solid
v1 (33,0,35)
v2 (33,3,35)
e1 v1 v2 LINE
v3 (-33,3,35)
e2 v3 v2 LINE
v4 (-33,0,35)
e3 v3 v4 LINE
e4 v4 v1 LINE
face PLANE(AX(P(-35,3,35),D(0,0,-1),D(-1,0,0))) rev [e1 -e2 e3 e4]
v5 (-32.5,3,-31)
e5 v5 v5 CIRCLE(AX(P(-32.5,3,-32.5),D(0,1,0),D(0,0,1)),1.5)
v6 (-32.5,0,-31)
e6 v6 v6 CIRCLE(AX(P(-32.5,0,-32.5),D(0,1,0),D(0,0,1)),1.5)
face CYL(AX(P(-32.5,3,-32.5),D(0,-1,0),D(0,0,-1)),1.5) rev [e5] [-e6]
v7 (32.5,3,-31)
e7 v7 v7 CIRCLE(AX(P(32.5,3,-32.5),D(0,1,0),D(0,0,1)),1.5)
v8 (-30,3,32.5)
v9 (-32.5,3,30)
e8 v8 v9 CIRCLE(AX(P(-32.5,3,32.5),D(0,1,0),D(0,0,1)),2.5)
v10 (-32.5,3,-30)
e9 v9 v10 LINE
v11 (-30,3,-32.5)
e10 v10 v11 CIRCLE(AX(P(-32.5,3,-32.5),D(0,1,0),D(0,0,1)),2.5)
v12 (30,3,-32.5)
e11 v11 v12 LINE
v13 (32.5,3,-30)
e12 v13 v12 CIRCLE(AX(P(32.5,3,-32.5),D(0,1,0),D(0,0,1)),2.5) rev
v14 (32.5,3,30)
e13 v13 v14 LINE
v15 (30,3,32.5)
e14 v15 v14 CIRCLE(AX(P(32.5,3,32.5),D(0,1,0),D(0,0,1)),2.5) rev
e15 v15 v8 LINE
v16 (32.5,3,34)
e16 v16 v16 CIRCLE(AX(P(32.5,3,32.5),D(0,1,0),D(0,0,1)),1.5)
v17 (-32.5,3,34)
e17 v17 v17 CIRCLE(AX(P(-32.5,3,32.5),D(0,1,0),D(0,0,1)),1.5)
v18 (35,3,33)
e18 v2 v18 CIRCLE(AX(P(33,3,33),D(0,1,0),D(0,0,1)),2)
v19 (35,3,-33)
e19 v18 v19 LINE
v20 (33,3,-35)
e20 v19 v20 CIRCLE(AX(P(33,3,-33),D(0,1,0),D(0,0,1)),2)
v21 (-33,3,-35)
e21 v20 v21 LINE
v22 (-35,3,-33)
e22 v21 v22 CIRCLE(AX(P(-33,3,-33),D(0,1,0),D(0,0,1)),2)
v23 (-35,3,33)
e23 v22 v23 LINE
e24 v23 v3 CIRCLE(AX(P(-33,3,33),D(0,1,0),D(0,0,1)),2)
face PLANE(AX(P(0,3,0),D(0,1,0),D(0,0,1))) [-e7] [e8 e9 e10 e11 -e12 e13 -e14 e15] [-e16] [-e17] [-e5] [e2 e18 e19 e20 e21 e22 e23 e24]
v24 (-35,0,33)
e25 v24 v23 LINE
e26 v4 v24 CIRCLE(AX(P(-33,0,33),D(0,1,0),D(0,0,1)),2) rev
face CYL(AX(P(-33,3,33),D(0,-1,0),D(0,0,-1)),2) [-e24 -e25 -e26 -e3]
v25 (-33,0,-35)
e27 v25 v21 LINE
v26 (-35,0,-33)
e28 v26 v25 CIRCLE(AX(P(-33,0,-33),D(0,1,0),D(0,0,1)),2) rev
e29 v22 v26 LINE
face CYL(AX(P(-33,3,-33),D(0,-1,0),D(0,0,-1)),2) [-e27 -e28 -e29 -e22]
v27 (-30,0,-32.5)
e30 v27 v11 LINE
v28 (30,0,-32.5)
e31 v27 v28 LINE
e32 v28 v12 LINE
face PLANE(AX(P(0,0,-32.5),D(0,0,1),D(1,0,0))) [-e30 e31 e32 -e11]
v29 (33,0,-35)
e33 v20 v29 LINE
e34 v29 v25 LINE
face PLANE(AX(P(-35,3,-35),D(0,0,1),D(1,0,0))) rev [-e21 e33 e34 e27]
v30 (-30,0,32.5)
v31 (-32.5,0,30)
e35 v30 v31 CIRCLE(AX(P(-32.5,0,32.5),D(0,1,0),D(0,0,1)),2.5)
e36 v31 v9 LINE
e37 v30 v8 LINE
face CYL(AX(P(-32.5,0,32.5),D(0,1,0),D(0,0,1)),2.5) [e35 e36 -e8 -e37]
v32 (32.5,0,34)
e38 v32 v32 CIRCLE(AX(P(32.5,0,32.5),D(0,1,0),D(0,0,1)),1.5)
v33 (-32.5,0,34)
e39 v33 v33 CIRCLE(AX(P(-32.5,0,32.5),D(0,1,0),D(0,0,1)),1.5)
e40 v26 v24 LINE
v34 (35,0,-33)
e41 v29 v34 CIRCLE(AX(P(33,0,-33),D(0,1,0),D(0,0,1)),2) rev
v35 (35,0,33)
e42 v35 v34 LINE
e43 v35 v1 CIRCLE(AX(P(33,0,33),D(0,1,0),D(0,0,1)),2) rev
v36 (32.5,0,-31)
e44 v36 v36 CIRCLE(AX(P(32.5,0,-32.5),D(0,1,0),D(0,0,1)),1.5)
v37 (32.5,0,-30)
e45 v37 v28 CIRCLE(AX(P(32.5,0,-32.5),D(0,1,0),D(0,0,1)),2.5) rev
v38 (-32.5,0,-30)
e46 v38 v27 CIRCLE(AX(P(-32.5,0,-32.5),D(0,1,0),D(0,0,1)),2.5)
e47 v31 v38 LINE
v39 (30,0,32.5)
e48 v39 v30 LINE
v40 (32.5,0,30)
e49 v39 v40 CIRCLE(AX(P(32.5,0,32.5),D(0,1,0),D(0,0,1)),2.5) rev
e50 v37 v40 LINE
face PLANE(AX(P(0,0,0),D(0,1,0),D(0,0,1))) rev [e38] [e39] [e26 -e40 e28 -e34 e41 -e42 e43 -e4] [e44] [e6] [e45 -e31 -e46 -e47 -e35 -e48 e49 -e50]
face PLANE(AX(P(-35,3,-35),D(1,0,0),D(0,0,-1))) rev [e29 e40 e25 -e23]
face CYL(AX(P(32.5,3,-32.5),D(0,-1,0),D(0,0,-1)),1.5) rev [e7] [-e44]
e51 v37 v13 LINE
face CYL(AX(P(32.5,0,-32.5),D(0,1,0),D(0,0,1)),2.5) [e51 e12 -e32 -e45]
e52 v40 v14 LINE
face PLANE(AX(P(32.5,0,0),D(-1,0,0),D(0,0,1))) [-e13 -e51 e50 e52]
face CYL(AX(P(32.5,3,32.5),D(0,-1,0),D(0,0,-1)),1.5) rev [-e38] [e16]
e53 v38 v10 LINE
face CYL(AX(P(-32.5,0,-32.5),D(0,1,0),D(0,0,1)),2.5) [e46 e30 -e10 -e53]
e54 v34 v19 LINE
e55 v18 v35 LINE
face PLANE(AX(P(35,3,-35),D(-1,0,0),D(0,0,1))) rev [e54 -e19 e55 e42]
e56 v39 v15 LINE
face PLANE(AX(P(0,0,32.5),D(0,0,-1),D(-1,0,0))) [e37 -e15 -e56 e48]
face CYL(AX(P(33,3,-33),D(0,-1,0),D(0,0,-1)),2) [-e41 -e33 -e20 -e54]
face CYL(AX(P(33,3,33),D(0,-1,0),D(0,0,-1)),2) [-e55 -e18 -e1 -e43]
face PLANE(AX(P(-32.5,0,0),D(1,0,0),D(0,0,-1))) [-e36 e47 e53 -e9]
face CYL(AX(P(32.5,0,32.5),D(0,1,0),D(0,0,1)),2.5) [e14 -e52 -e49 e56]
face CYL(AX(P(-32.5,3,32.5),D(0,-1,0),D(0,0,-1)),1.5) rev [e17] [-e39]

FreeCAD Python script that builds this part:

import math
import FreeCAD as App
import Part
import Sketcher
Q = App.Units.Quantity


def edges_at(feature, points):
    """Names of the edges that pass closest to the given points."""
    edges = feature.Shape.Edges
    near = lambda p: min(range(len(edges)), key=lambda i: edges[i].distToShape(Part.Vertex(*p))[0])
    return sorted({f"Edge{near(p) + 1}" for p in points})


def add_polygon(sketch, points):
    """Adds a closed chain of lines whose ends are joined by coincident constraints."""
    first, n = sketch.GeometryCount, len(points)
    for a, b in zip(points, points[1:] + points[:1]):
        sketch.addGeometry(Part.LineSegment(App.Vector(*a, 0), App.Vector(*b, 0)), False)
    for i in range(n):
        sketch.addConstraint(Sketcher.Constraint("Coincident", first + i, 2, first + (i + 1) % n, 1))

doc = App.newDocument("Part")
body = doc.addObject("PartDesign::Body", "Body")

sketch1 = body.newObject("Sketcher::SketchObject", "Sketch")
sketch1.AttachmentSupport = (doc.getObject("XZ_Plane"), [""])
sketch1.MapMode = "FlatFace"
add_polygon(sketch1, [(-35, -35), (-35, 35), (35, 35), (35, -35)])
sketch1.addGeometry(Part.Circle(App.Vector(-32.5, 32.5, 0), App.Vector(0, 0, 1), 1.5), False)
sketch1.addGeometry(Part.Circle(App.Vector(32.5, 32.5, 0), App.Vector(0, 0, 1), 1.5), False)
sketch1.addGeometry(Part.Circle(App.Vector(-32.5, -32.5, 0), App.Vector(0, 0, 1), 1.5), False)
sketch1.addGeometry(Part.Circle(App.Vector(32.5, -32.5, 0), App.Vector(0, 0, 1), 1.5), False)
sketch1.addConstraint(Sketcher.Constraint("Vertical", 0))
sketch1.addConstraint(Sketcher.Constraint("Horizontal", 1))
sketch1.addConstraint(Sketcher.Constraint("Vertical", 2))
sketch1.addConstraint(Sketcher.Constraint("Horizontal", 3))
sketch1.addConstraint(Sketcher.Constraint("Equal", 4, 5))
sketch1.addConstraint(Sketcher.Constraint("Equal", 5, 6))
sketch1.addConstraint(Sketcher.Constraint("Equal", 6, 7))
sketch1.addConstraint(Sketcher.Constraint("Symmetric", 5, 3, 6, 3, -1, 1))
sketch1.addConstraint(Sketcher.Constraint("Symmetric", 4, 3, 7, 3, -1, 1))
sketch1.addConstraint(Sketcher.Constraint("Symmetric", 0, 2, 2, 2, -1, 1))
sketch1.addConstraint(Sketcher.Constraint("Symmetric", 4, 3, 5, 3, -2))
sketch1.addConstraint(Sketcher.Constraint("Equal", 3, 0))
sketch1.addConstraint(Sketcher.Constraint("Diameter", 4, Q("3 mm")))
sketch1.addConstraint(Sketcher.Constraint("DistanceX", 1, 1, 1, 2, Q("70 mm")))
sketch1.addConstraint(Sketcher.Constraint("DistanceX", 4, 3, 5, 3, Q("65 mm")))
sketch1.addConstraint(Sketcher.Constraint("DistanceY", 6, 3, 4, 3, Q("65 mm")))
pad1 = body.newObject("PartDesign::Pad", "Pad")
pad1.Profile = sketch1
pad1.Length = 3
pad1.Reversed = True
doc.recompute()

fillet = body.newObject("PartDesign::Fillet", "Fillet")
fillet.Base = (pad1, edges_at(pad1, [
    (35, 1.5, 35),
    (-35, 1.5, 35),
    (-35, 1.5, -35),
    (35, 1.5, -35),
]))
fillet.Radius = 2

sketch2 = body.newObject("Sketcher::SketchObject", "Sketch001")
sketch2.AttachmentSupport = (doc.getObject("XZ_Plane"), [""])
sketch2.MapMode = "FlatFace"
sketch2.AttachmentOffset = App.Placement(App.Vector(0, 0, -3), App.Rotation())
sketch2.addGeometry(Part.LineSegment(App.Vector(-30, 32.5, 0), App.Vector(30, 32.5, 0)), False)
sketch2.addGeometry(Part.ArcOfCircle(Part.Circle(App.Vector(32.5, 32.5, 0), App.Vector(0, 0, 1), 2.5), math.radians(180), math.radians(270)), False)
sketch2.addGeometry(Part.LineSegment(App.Vector(32.5, 30, 0), App.Vector(32.5, -30, 0)), False)
sketch2.addGeometry(Part.ArcOfCircle(Part.Circle(App.Vector(32.5, -32.5, 0), App.Vector(0, 0, 1), 2.5), math.radians(90), math.radians(180)), False)
sketch2.addGeometry(Part.LineSegment(App.Vector(30, -32.5, 0), App.Vector(-30, -32.5, 0)), False)
sketch2.addGeometry(Part.ArcOfCircle(Part.Circle(App.Vector(-32.5, -32.5, 0), App.Vector(0, 0, 1), 2.5), math.radians(0), math.radians(90)), False)
sketch2.addGeometry(Part.LineSegment(App.Vector(-32.5, -30, 0), App.Vector(-32.5, 30, 0)), False)
sketch2.addGeometry(Part.ArcOfCircle(Part.Circle(App.Vector(-32.5, 32.5, 0), App.Vector(0, 0, 1), 2.5), math.radians(-90), math.radians(0)), False)
sketch2.addConstraint(Sketcher.Constraint("Coincident", 0, 2, 1, 1))
sketch2.addConstraint(Sketcher.Constraint("Coincident", 1, 2, 2, 1))
sketch2.addConstraint(Sketcher.Constraint("Coincident", 2, 2, 3, 1))
sketch2.addConstraint(Sketcher.Constraint("Coincident", 3, 2, 4, 1))
sketch2.addConstraint(Sketcher.Constraint("Coincident", 4, 2, 5, 1))
sketch2.addConstraint(Sketcher.Constraint("Coincident", 5, 2, 6, 1))
sketch2.addConstraint(Sketcher.Constraint("Coincident", 6, 2, 7, 1))
sketch2.addConstraint(Sketcher.Constraint("Coincident", 7, 2, 0, 1))
sketch2.addConstraint(Sketcher.Constraint("Horizontal", 0))
sketch2.addConstraint(Sketcher.Constraint("Vertical", 2))
sketch2.addConstraint(Sketcher.Constraint("Horizontal", 4))
sketch2.addConstraint(Sketcher.Constraint("Vertical", 6))
sketch2.addConstraint(Sketcher.Constraint("Equal", 1, 3))
sketch2.addConstraint(Sketcher.Constraint("Equal", 3, 5))
sketch2.addConstraint(Sketcher.Constraint("Equal", 5, 7))
sketch2.addConstraint(Sketcher.Constraint("Symmetric", 1, 3, 5, 3, -1, 1))
sketch2.addConstraint(Sketcher.Constraint("Symmetric", 3, 3, 7, 3, -1, 1))
sketch2.addConstraint(Sketcher.Constraint("Symmetric", 3, 3, 5, 3, -2))
sketch2.addConstraint(Sketcher.Constraint("Horizontal", 7, 3, 0, 2))
sketch2.addConstraint(Sketcher.Constraint("Horizontal", 5, 3, 3, 2))
sketch2.addConstraint(Sketcher.Constraint("Vertical", 3, 3, 1, 2))
sketch2.addConstraint(Sketcher.Constraint("Vertical", 7, 3, 5, 2))
sketch2.addConstraint(Sketcher.Constraint("Equal", 4, 2))
sketch2.addConstraint(Sketcher.Constraint("Radius", 1, Q("2.5 mm")))
sketch2.addConstraint(Sketcher.Constraint("DistanceX", 0, 1, 0, 2, Q("60 mm")))
pocket1 = body.newObject("PartDesign::Pocket", "Pocket")
pocket1.Profile = sketch2
pocket1.Type = "ThroughAll"
pocket1.Reversed = True

doc.recompute()
